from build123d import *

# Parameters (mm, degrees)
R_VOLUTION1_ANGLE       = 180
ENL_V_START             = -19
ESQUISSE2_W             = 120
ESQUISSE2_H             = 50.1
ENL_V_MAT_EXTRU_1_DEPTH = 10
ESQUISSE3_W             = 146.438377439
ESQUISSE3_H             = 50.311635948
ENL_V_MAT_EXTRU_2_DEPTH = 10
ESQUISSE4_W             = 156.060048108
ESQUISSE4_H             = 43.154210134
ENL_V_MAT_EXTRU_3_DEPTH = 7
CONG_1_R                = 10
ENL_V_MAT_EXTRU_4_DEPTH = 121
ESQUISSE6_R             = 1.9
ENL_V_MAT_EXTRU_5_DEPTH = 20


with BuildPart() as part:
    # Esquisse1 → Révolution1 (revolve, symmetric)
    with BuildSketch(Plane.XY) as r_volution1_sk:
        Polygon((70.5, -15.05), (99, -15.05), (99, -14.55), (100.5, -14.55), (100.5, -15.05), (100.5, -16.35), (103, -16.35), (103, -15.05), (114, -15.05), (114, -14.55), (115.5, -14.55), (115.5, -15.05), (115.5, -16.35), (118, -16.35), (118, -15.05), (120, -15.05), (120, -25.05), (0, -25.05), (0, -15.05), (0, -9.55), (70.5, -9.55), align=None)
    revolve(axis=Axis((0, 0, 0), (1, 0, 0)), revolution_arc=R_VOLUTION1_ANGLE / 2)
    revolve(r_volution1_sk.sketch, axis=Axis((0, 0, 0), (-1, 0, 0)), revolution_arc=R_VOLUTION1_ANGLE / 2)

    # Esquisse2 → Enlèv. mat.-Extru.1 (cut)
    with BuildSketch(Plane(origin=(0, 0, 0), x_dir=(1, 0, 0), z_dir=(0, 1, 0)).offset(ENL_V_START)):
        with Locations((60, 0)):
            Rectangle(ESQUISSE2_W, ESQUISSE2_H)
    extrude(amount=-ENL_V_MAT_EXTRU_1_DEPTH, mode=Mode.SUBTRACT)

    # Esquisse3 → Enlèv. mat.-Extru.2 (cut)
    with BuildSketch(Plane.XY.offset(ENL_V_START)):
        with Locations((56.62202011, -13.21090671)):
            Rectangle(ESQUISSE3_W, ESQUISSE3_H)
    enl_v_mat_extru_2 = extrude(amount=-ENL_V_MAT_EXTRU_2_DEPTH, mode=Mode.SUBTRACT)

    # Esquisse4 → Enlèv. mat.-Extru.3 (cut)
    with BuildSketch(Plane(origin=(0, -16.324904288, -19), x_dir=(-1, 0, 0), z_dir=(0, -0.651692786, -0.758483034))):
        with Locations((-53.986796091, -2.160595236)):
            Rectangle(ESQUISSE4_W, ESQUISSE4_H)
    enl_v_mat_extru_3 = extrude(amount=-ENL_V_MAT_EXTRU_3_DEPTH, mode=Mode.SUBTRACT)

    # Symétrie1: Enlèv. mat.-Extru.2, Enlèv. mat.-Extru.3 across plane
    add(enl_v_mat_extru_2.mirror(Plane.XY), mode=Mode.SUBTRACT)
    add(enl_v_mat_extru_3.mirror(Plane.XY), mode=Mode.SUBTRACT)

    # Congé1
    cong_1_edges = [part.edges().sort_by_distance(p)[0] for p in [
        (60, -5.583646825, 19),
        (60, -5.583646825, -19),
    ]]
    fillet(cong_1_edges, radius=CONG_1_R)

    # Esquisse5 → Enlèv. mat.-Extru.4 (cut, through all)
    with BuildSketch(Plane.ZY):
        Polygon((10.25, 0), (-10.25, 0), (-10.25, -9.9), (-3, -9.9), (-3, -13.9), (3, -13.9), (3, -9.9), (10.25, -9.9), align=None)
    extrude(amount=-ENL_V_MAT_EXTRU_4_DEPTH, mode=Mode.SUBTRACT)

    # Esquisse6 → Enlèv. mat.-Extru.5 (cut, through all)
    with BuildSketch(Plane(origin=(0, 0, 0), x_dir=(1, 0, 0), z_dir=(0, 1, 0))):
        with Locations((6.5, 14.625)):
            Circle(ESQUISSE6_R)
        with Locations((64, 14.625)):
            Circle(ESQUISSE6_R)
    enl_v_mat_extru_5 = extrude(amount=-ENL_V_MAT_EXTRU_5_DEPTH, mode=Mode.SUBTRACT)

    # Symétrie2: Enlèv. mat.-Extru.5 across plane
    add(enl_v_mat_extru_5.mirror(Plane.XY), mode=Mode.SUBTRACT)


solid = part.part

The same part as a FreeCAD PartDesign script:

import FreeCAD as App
import Part
import Sketcher

V = App.Vector


def edges_at(feature, points):
    """Names of the edges that pass closest to the given points."""
    edges = feature.Shape.Edges
    near = lambda p: min(range(len(edges)), key=lambda i: edges[i].distToShape(Part.Vertex(*p))[0])
    return sorted({f"Edge{near(p) + 1}" for p in points})

doc = App.newDocument("Part")
body = doc.addObject("PartDesign::Body", "Body")

sketch1 = body.newObject("Sketcher::SketchObject", "Sketch")
sketch1.AttachmentSupport = (doc.getObject("XY_Plane"), [""])
sketch1.MapMode = "FlatFace"
sketch1.addGeometry(Part.LineSegment(V(99, -15.1, 0), V(70.5, -15.1, 0)), False)
sketch1.addGeometry(Part.LineSegment(V(70.5, -15.1, 0), V(70.5, -9.6, 0)), False)
sketch1.addGeometry(Part.LineSegment(V(70.5, -9.6, 0), V(0, -9.6, 0)), False)
sketch1.addGeometry(Part.LineSegment(V(0, -9.6, 0), V(0, -25.1, 0)), False)
sketch1.addGeometry(Part.LineSegment(V(0, -25.1, 0), V(120, -25.1, 0)), False)
sketch1.addGeometry(Part.LineSegment(V(120, -25.1, 0), V(120, -15.1, 0)), False)
sketch1.addGeometry(Part.LineSegment(V(120, -15.1, 0), V(118, -15.1, 0)), False)
sketch1.addGeometry(Part.LineSegment(V(118, -15.1, 0), V(118, -16.4, 0)), False)
sketch1.addGeometry(Part.LineSegment(V(118, -16.4, 0), V(115.5, -16.4, 0)), False)
sketch1.addGeometry(Part.LineSegment(V(115.5, -16.4, 0), V(115.5, -14.6, 0)), False)
sketch1.addGeometry(Part.LineSegment(V(115.5, -14.6, 0), V(114, -14.6, 0)), False)
sketch1.addGeometry(Part.LineSegment(V(114, -14.6, 0), V(114, -15.1, 0)), False)
sketch1.addGeometry(Part.LineSegment(V(114, -15.1, 0), V(103, -15.1, 0)), False)
sketch1.addGeometry(Part.LineSegment(V(103, -15.1, 0), V(103, -16.4, 0)), False)
sketch1.addGeometry(Part.LineSegment(V(103, -16.4, 0), V(100.5, -16.4, 0)), False)
sketch1.addGeometry(Part.LineSegment(V(100.5, -16.4, 0), V(100.5, -14.6, 0)), False)
sketch1.addGeometry(Part.LineSegment(V(100.5, -14.6, 0), V(99, -14.6, 0)), False)
sketch1.addGeometry(Part.LineSegment(V(99, -14.6, 0), V(99, -15.1, 0)), False)
sketch1.addConstraint(Sketcher.Constraint("Coincident", 0, 2, 1, 1))
sketch1.addConstraint(Sketcher.Constraint("Coincident", 1, 2, 2, 1))
sketch1.addConstraint(Sketcher.Constraint("Coincident", 2, 2, 3, 1))
sketch1.addConstraint(Sketcher.Constraint("Coincident", 3, 2, 4, 1))
sketch1.addConstraint(Sketcher.Constraint("Coincident", 4, 2, 5, 1))
sketch1.addConstraint(Sketcher.Constraint("Coincident", 5, 2, 6, 1))
sketch1.addConstraint(Sketcher.Constraint("Coincident", 6, 2, 7, 1))
sketch1.addConstraint(Sketcher.Constraint("Coincident", 7, 2, 8, 1))
sketch1.addConstraint(Sketcher.Constraint("Coincident", 8, 2, 9, 1))
sketch1.addConstraint(Sketcher.Constraint("Coincident", 9, 2, 10, 1))
sketch1.addConstraint(Sketcher.Constraint("Coincident", 10, 2, 11, 1))
sketch1.addConstraint(Sketcher.Constraint("Coincident", 11, 2, 12, 1))
sketch1.addConstraint(Sketcher.Constraint("Coincident", 12, 2, 13, 1))
sketch1.addConstraint(Sketcher.Constraint("Coincident", 13, 2, 14, 1))
sketch1.addConstraint(Sketcher.Constraint("Coincident", 14, 2, 15, 1))
sketch1.addConstraint(Sketcher.Constraint("Coincident", 15, 2, 16, 1))
sketch1.addConstraint(Sketcher.Constraint("Coincident", 16, 2, 17, 1))
sketch1.addConstraint(Sketcher.Constraint("Coincident", 17, 2, 0, 1))
sketch1.addConstraint(Sketcher.Constraint("Horizontal", 0))
sketch1.addConstraint(Sketcher.Constraint("Vertical", 1))
sketch1.addConstraint(Sketcher.Constraint("Horizontal", 2))
sketch1.addConstraint(Sketcher.Constraint("Vertical", 3))
sketch1.addConstraint(Sketcher.Constraint("Horizontal", 4))
sketch1.addConstraint(Sketcher.Constraint("Vertical", 5))
sketch1.addConstraint(Sketcher.Constraint("Horizontal", 6))
sketch1.addConstraint(Sketcher.Constraint("Vertical", 7))
sketch1.addConstraint(Sketcher.Constraint("Horizontal", 8))
sketch1.addConstraint(Sketcher.Constraint("Vertical", 9))
sketch1.addConstraint(Sketcher.Constraint("Horizontal", 10))
sketch1.addConstraint(Sketcher.Constraint("Vertical", 11))
sketch1.addConstraint(Sketcher.Constraint("Horizontal", 12))
sketch1.addConstraint(Sketcher.Constraint("Vertical", 13))
sketch1.addConstraint(Sketcher.Constraint("Horizontal", 14))
sketch1.addConstraint(Sketcher.Constraint("Vertical", 15))
sketch1.addConstraint(Sketcher.Constraint("Horizontal", 16))
sketch1.addConstraint(Sketcher.Constraint("Vertical", 17))
sketch1.addConstraint(Sketcher.Constraint("PointOnObject", 2, 2, -2))
sketch1.addConstraint(Sketcher.Constraint("Horizontal", 0, 2, 5, 2))
sketch1.addConstraint(Sketcher.Constraint("Horizontal", 6, 2, 11, 2))
sketch1.addConstraint(Sketcher.Constraint("Horizontal", 8, 2, 13, 2))
sketch1.addConstraint(Sketcher.Constraint("Horizontal", 10, 2, 15, 2))
sketch1.addConstraint(Sketcher.Constraint("Equal", 8, 14))
sketch1.addConstraint(Sketcher.Constraint("Equal", 10, 16))
sketch1.addConstraint(Sketcher.Constraint("DistanceX", 4, 1, 4, 2, 120.0))
sketch1.addConstraint(Sketcher.Constraint("DistanceX", 6, 2, 6, 1, 2.0))
sketch1.addConstraint(Sketcher.Constraint("DistanceX", 12, 2, 12, 1, 11.0))
sketch1.addConstraint(Sketcher.Constraint("DistanceY", 5, 1, 5, 2, 10.0))
sketch1.addConstraint(Sketcher.Constraint("DistanceX", 0, 2, 0, 1, 28.5))
sketch1.addConstraint(Sketcher.Constraint("DistanceX", 2, 2, 2, 1, 70.5))
sketch1.addConstraint(Sketcher.Constraint("DistanceX", 8, 2, 8, 1, 2.5))
sketch1.addConstraint(Sketcher.Constraint("DistanceY", 1, 1, 1, 2, 5.5))
sketch1.addConstraint(Sketcher.Constraint("DistanceY", 7, 2, 7, 1, 1.3))
sketch1.addConstraint(Sketcher.Constraint("DistanceY", 9, 1, 9, 2, 1.8))
sketch1.addConstraint(Sketcher.Constraint("DistanceY", 0, 2, -1, 1, 15.05))
revolution = body.newObject("PartDesign::Revolution", "Revolution")
revolution.Profile = sketch1
revolution.ReferenceAxis = (sketch1, ["H_Axis"])
revolution.Angle = 90

sketch2 = body.newObject("Sketcher::SketchObject", "Sketch001")
sketch2.AttachmentSupport = (doc.getObject("XY_Plane"), [""])
sketch2.MapMode = "FlatFace"
sketch2.addGeometry(Part.LineSegment(V(99, -15.1, 0), V(70.5, -15.1, 0)), False)
sketch2.addGeometry(Part.LineSegment(V(70.5, -15.1, 0), V(70.5, -9.6, 0)), False)
sketch2.addGeometry(Part.LineSegment(V(70.5, -9.6, 0), V(0, -9.6, 0)), False)
sketch2.addGeometry(Part.LineSegment(V(0, -9.6, 0), V(0, -25.1, 0)), False)
sketch2.addGeometry(Part.LineSegment(V(0, -25.1, 0), V(120, -25.1, 0)), False)
sketch2.addGeometry(Part.LineSegment(V(120, -25.1, 0), V(120, -15.1, 0)), False)
sketch2.addGeometry(Part.LineSegment(V(120, -15.1, 0), V(118, -15.1, 0)), False)
sketch2.addGeometry(Part.LineSegment(V(118, -15.1, 0), V(118, -16.4, 0)), False)
sketch2.addGeometry(Part.LineSegment(V(118, -16.4, 0), V(115.5, -16.4, 0)), False)
sketch2.addGeometry(Part.LineSegment(V(115.5, -16.4, 0), V(115.5, -14.6, 0)), False)
sketch2.addGeometry(Part.LineSegment(V(115.5, -14.6, 0), V(114, -14.6, 0)), False)
sketch2.addGeometry(Part.LineSegment(V(114, -14.6, 0), V(114, -15.1, 0)), False)
sketch2.addGeometry(Part.LineSegment(V(114, -15.1, 0), V(103, -15.1, 0)), False)
sketch2.addGeometry(Part.LineSegment(V(103, -15.1, 0), V(103, -16.4, 0)), False)
sketch2.addGeometry(Part.LineSegment(V(103, -16.4, 0), V(100.5, -16.4, 0)), False)
sketch2.addGeometry(Part.LineSegment(V(100.5, -16.4, 0), V(100.5, -14.6, 0)), False)
sketch2.addGeometry(Part.LineSegment(V(100.5, -14.6, 0), V(99, -14.6, 0)), False)
sketch2.addGeometry(Part.LineSegment(V(99, -14.6, 0), V(99, -15.1, 0)), False)
sketch2.addConstraint(Sketcher.Constraint("Coincident", 0, 2, 1, 1))
sketch2.addConstraint(Sketcher.Constraint("Coincident", 1, 2, 2, 1))
sketch2.addConstraint(Sketcher.Constraint("Coincident", 2, 2, 3, 1))
sketch2.addConstraint(Sketcher.Constraint("Coincident", 3, 2, 4, 1))
sketch2.addConstraint(Sketcher.Constraint("Coincident", 4, 2, 5, 1))
sketch2.addConstraint(Sketcher.Constraint("Coincident", 5, 2, 6, 1))
sketch2.addConstraint(Sketcher.Constraint("Coincident", 6, 2, 7, 1))
sketch2.addConstraint(Sketcher.Constraint("Coincident", 7, 2, 8, 1))
sketch2.addConstraint(Sketcher.Constraint("Coincident", 8, 2, 9, 1))
sketch2.addConstraint(Sketcher.Constraint("Coincident", 9, 2, 10, 1))
sketch2.addConstraint(Sketcher.Constraint("Coincident", 10, 2, 11, 1))
sketch2.addConstraint(Sketcher.Constraint("Coincident", 11, 2, 12, 1))
sketch2.addConstraint(Sketcher.Constraint("Coincident", 12, 2, 13, 1))
sketch2.addConstraint(Sketcher.Constraint("Coincident", 13, 2, 14, 1))
sketch2.addConstraint(Sketcher.Constraint("Coincident", 14, 2, 15, 1))
sketch2.addConstraint(Sketcher.Constraint("Coincident", 15, 2, 16, 1))
sketch2.addConstraint(Sketcher.Constraint("Coincident", 16, 2, 17, 1))
sketch2.addConstraint(Sketcher.Constraint("Coincident", 17, 2, 0, 1))
sketch2.addConstraint(Sketcher.Constraint("Horizontal", 0))
sketch2.addConstraint(Sketcher.Constraint("Vertical", 1))
sketch2.addConstraint(Sketcher.Constraint("Horizontal", 2))
sketch2.addConstraint(Sketcher.Constraint("Vertical", 3))
sketch2.addConstraint(Sketcher.Constraint("Horizontal", 4))
sketch2.addConstraint(Sketcher.Constraint("Vertical", 5))
sketch2.addConstraint(Sketcher.Constraint("Horizontal", 6))
sketch2.addConstraint(Sketcher.Constraint("Vertical", 7))
sketch2.addConstraint(Sketcher.Constraint("Horizontal", 8))
sketch2.addConstraint(Sketcher.Constraint("Vertical", 9))
sketch2.addConstraint(Sketcher.Constraint("Horizontal", 10))
sketch2.addConstraint(Sketcher.Constraint("Vertical", 11))
sketch2.addConstraint(Sketcher.Constraint("Horizontal", 12))
sketch2.addConstraint(Sketcher.Constraint("Vertical", 13))
sketch2.addConstraint(Sketcher.Constraint("Horizontal", 14))
sketch2.addConstraint(Sketcher.Constraint("Vertical", 15))
sketch2.addConstraint(Sketcher.Constraint("Horizontal", 16))
sketch2.addConstraint(Sketcher.Constraint("Vertical", 17))
sketch2.addConstraint(Sketcher.Constraint("PointOnObject", 2, 2, -2))
sketch2.addConstraint(Sketcher.Constraint("Horizontal", 0, 2, 5, 2))
sketch2.addConstraint(Sketcher.Constraint("Horizontal", 6, 2, 11, 2))
sketch2.addConstraint(Sketcher.Constraint("Horizontal", 8, 2, 13, 2))
sketch2.addConstraint(Sketcher.Constraint("Horizontal", 10, 2, 15, 2))
sketch2.addConstraint(Sketcher.Constraint("Equal", 8, 14))
sketch2.addConstraint(Sketcher.Constraint("Equal", 10, 16))
sketch2.addConstraint(Sketcher.Constraint("DistanceX", 4, 1, 4, 2, 120.0))
sketch2.addConstraint(Sketcher.Constraint("DistanceX", 6, 2, 6, 1, 2.0))
sketch2.addConstraint(Sketcher.Constraint("DistanceX", 12, 2, 12, 1, 11.0))
sketch2.addConstraint(Sketcher.Constraint("DistanceY", 5, 1, 5, 2, 10.0))
sketch2.addConstraint(Sketcher.Constraint("DistanceX", 0, 2, 0, 1, 28.5))
sketch2.addConstraint(Sketcher.Constraint("DistanceX", 2, 2, 2, 1, 70.5))
sketch2.addConstraint(Sketcher.Constraint("DistanceX", 8, 2, 8, 1, 2.5))
sketch2.addConstraint(Sketcher.Constraint("DistanceY", 1, 1, 1, 2, 5.5))
sketch2.addConstraint(Sketcher.Constraint("DistanceY", 7, 2, 7, 1, 1.3))
sketch2.addConstraint(Sketcher.Constraint("DistanceY", 9, 1, 9, 2, 1.8))
sketch2.addConstraint(Sketcher.Constraint("DistanceY", 0, 2, -1, 1, 15.05))
revolution2 = body.newObject("PartDesign::Revolution", "Revolution001")
revolution2.Profile = sketch2
revolution2.ReferenceAxis = (sketch2, ["H_Axis"])
revolution2.Angle = 90
revolution2.Reversed = True

sketch3 = body.newObject("Sketcher::SketchObject", "Sketch002")
sketch3.AttachmentSupport = (doc.getObject("XZ_Plane"), [""])
sketch3.MapMode = "FlatFace"
sketch3.AttachmentOffset = App.Placement(V(0, 0, 19), App.Rotation())
sketch3.addGeometry(Part.LineSegment(V(0, -25, 0), V(0, 25, 0)), False)
sketch3.addGeometry(Part.LineSegment(V(0, 25, 0), V(120, 25, 0)), False)
sketch3.addGeometry(Part.LineSegment(V(120, 25, 0), V(120, -25, 0)), False)
sketch3.addGeometry(Part.LineSegment(V(120, -25, 0), V(0, -25, 0)), False)
sketch3.addConstraint(Sketcher.Constraint("Coincident", 0, 2, 1, 1))
sketch3.addConstraint(Sketcher.Constraint("Coincident", 1, 2, 2, 1))
sketch3.addConstraint(Sketcher.Constraint("Coincident", 2, 2, 3, 1))
sketch3.addConstraint(Sketcher.Constraint("Coincident", 3, 2, 0, 1))
sketch3.addConstraint(Sketcher.Constraint("Vertical", 0))
sketch3.addConstraint(Sketcher.Constraint("Horizontal", 1))
sketch3.addConstraint(Sketcher.Constraint("Vertical", 2))
sketch3.addConstraint(Sketcher.Constraint("Horizontal", 3))
sketch3.addConstraint(Sketcher.Constraint("Symmetric", 0, 2, 3, 2, -1, 1))
sketch3.addConstraint(Sketcher.Constraint("DistanceX", 1, 1, 1, 2, 120.0))
sketch3.addConstraint(Sketcher.Constraint("DistanceY", 0, 1, 0, 2, 50.1))
pocket1 = body.newObject("PartDesign::Pocket", "Pocket")
pocket1.Profile = sketch3
pocket1.Length = 10
pocket1.Reversed = True

sketch4 = body.newObject("Sketcher::SketchObject", "Sketch003")
sketch4.AttachmentSupport = (doc.getObject("XY_Plane"), [""])
sketch4.MapMode = "FlatFace"
sketch4.AttachmentOffset = App.Placement(V(0, 0, -19), App.Rotation())
sketch4.addGeometry(Part.LineSegment(V(-17, 12, 0), V(-17, -38, 0)), False)
sketch4.addGeometry(Part.LineSegment(V(-17, -38, 0), V(130, -38, 0)), False)
sketch4.addGeometry(Part.LineSegment(V(130, -38, 0), V(130, 12, 0)), False)
sketch4.addGeometry(Part.LineSegment(V(130, 12, 0), V(-17, 12, 0)), False)
sketch4.addConstraint(Sketcher.Constraint("Coincident", 0, 2, 1, 1))
sketch4.addConstraint(Sketcher.Constraint("Coincident", 1, 2, 2, 1))
sketch4.addConstraint(Sketcher.Constraint("Coincident", 2, 2, 3, 1))
sketch4.addConstraint(Sketcher.Constraint("Coincident", 3, 2, 0, 1))
sketch4.addConstraint(Sketcher.Constraint("Vertical", 0))
sketch4.addConstraint(Sketcher.Constraint("Horizontal", 1))
sketch4.addConstraint(Sketcher.Constraint("Vertical", 2))
sketch4.addConstraint(Sketcher.Constraint("Horizontal", 3))
sketch4.addConstraint(Sketcher.Constraint("DistanceX", 1, 1, 1, 2, 146.438377))
sketch4.addConstraint(Sketcher.Constraint("DistanceY", 0, 2, 0, 1, 50.311636))
sketch4.addConstraint(Sketcher.Constraint("DistanceX", 0, 2, -1, 1, 16.597169))
sketch4.addConstraint(Sketcher.Constraint("DistanceY", -1, 1, 2, 2, 11.944911))
pocket2 = body.newObject("PartDesign::Pocket", "Pocket001")
pocket2.Profile = sketch4
pocket2.Length = 10

sketch5 = body.newObject("Sketcher::SketchObject", "Sketch004")
sketch5.Placement = App.Placement(V(0, -16.324904, -19), App.Rotation(V(-1, 0, 0), V(0, 0.758483034, -0.651692786), V(0, -0.651692786, -0.758483034), "ZXY"))
sketch5.addGeometry(Part.LineSegment(V(-132, 19, 0), V(-132, -24, 0)), False)
sketch5.addGeometry(Part.LineSegment(V(-132, -24, 0), V(24, -24, 0)), False)
sketch5.addGeometry(Part.LineSegment(V(24, -24, 0), V(24, 19, 0)), False)
sketch5.addGeometry(Part.LineSegment(V(24, 19, 0), V(-132, 19, 0)), False)
sketch5.addConstraint(Sketcher.Constraint("Coincident", 0, 2, 1, 1))
sketch5.addConstraint(Sketcher.Constraint("Coincident", 1, 2, 2, 1))
sketch5.addConstraint(Sketcher.Constraint("Coincident", 2, 2, 3, 1))
sketch5.addConstraint(Sketcher.Constraint("Coincident", 3, 2, 0, 1))
sketch5.addConstraint(Sketcher.Constraint("Vertical", 0))
sketch5.addConstraint(Sketcher.Constraint("Horizontal", 1))
sketch5.addConstraint(Sketcher.Constraint("Vertical", 2))
sketch5.addConstraint(Sketcher.Constraint("Horizontal", 3))
sketch5.addConstraint(Sketcher.Constraint("DistanceX", 1, 1, 1, 2, 156.060048))
sketch5.addConstraint(Sketcher.Constraint("DistanceY", 0, 2, 0, 1, 43.15421))
sketch5.addConstraint(Sketcher.Constraint("DistanceY", 0, 2, -1, 1, 23.7377))
sketch5.addConstraint(Sketcher.Constraint("DistanceX", 0, 2, -1, 1, 132.01682))
pocket3 = body.newObject("PartDesign::Pocket", "Pocket002")
pocket3.Profile = sketch5
pocket3.Length = 7
doc.recompute()

mirrored = body.newObject("PartDesign::Mirrored", "Mirrored")
mirrored.Originals = [pocket2, pocket3]
mirrored.MirrorPlane = (doc.getObject("XY_Plane"), [""])
body.Tip = mirrored
doc.recompute()

fillet = body.newObject("PartDesign::Fillet", "Fillet")
fillet.Base = (mirrored, edges_at(mirrored, [(60, -5.584, 19), (60, -5.584, -19)]))
fillet.Radius = 10

sketch6 = body.newObject("Sketcher::SketchObject", "Sketch005")
sketch6.AttachmentSupport = (doc.getObject("YZ_Plane"), [""])
sketch6.MapMode = "FlatFace"
sketch6.addGeometry(Part.LineSegment(V(0, 10.2, 0), V(0, -10.2, 0)), False)
sketch6.addGeometry(Part.LineSegment(V(0, -10.2, 0), V(-9.9, -10.2, 0)), False)
sketch6.addGeometry(Part.LineSegment(V(-9.9, -10.2, 0), V(-9.9, -3, 0)), False)
sketch6.addGeometry(Part.LineSegment(V(-9.9, -3, 0), V(-13.9, -3, 0)), False)
sketch6.addGeometry(Part.LineSegment(V(-13.9, -3, 0), V(-13.9, 3, 0)), False)
sketch6.addGeometry(Part.LineSegment(V(-13.9, 3, 0), V(-9.9, 3, 0)), False)
sketch6.addGeometry(Part.LineSegment(V(-9.9, 3, 0), V(-9.9, 10.2, 0)), False)
sketch6.addGeometry(Part.LineSegment(V(-9.9, 10.2, 0), V(0, 10.2, 0)), False)
sketch6.addConstraint(Sketcher.Constraint("Coincident", 0, 2, 1, 1))
sketch6.addConstraint(Sketcher.Constraint("Coincident", 1, 2, 2, 1))
sketch6.addConstraint(Sketcher.Constraint("Coincident", 2, 2, 3, 1))
sketch6.addConstraint(Sketcher.Constraint("Coincident", 3, 2, 4, 1))
sketch6.addConstraint(Sketcher.Constraint("Coincident", 4, 2, 5, 1))
sketch6.addConstraint(Sketcher.Constraint("Coincident", 5, 2, 6, 1))
sketch6.addConstraint(Sketcher.Constraint("Coincident", 6, 2, 7, 1))
sketch6.addConstraint(Sketcher.Constraint("Coincident", 7, 2, 0, 1))
sketch6.addConstraint(Sketcher.Constraint("Vertical", 0))
sketch6.addConstraint(Sketcher.Constraint("Horizontal", 1))
sketch6.addConstraint(Sketcher.Constraint("Vertical", 2))
sketch6.addConstraint(Sketcher.Constraint("Horizontal", 3))
sketch6.addConstraint(Sketcher.Constraint("Vertical", 4))
sketch6.addConstraint(Sketcher.Constraint("Horizontal", 5))
sketch6.addConstraint(Sketcher.Constraint("Vertical", 6))
sketch6.addConstraint(Sketcher.Constraint("Horizontal", 7))
sketch6.addConstraint(Sketcher.Constraint("Symmetric", 0, 2, 7, 2, -1, 1))
sketch6.addConstraint(Sketcher.Constraint("Symmetric", 2, 2, 5, 2, -1))
sketch6.addConstraint(Sketcher.Constraint("DistanceX", 3, 2, 3, 1, 4.0))
sketch6.addConstraint(Sketcher.Constraint("DistanceY", 4, 1, 4, 2, 6.0))
sketch6.addConstraint(Sketcher.Constraint("DistanceX", 1, 2, 1, 1, 9.9))
sketch6.addConstraint(Sketcher.Constraint("DistanceY", 0, 2, 0, 1, 20.5))
pocket4 = body.newObject("PartDesign::Pocket", "Pocket003")
pocket4.Profile = sketch6
pocket4.Type = "ThroughAll"
pocket4.Reversed = True

sketch7 = body.newObject("Sketcher::SketchObject", "Sketch006")
sketch7.AttachmentSupport = (doc.getObject("XZ_Plane"), [""])
sketch7.MapMode = "FlatFace"
sketch7.addGeometry(Part.Circle(V(6.5, -14.6, 0), V(0, 0, 1), 1.9), False)
sketch7.addGeometry(Part.Circle(V(64, -14.6, 0), V(0, 0, 1), 1.9), False)
sketch7.addConstraint(Sketcher.Constraint("Equal", 0, 1))
sketch7.addConstraint(Sketcher.Constraint("Horizontal", 0, 3, 1, 3))
sketch7.addConstraint(Sketcher.Constraint("Diameter", 0, 3.8))
sketch7.addConstraint(Sketcher.Constraint("DistanceX", -1, 1, 1, 3, 64.0))
sketch7.addConstraint(Sketcher.Constraint("DistanceX", -1, 1, 0, 3, 6.5))
sketch7.addConstraint(Sketcher.Constraint("DistanceY", 0, 3, -1, 1, 14.625))
pocket5 = body.newObject("PartDesign::Pocket", "Pocket004")
pocket5.Profile = sketch7
pocket5.Type = "ThroughAll"
pocket5.Reversed = True
doc.recompute()

mirrored2 = body.newObject("PartDesign::Mirrored", "Mirrored001")
mirrored2.Originals = [pocket5]
mirrored2.MirrorPlane = (doc.getObject("XY_Plane"), [""])
body.Tip = mirrored2

doc.recompute()
